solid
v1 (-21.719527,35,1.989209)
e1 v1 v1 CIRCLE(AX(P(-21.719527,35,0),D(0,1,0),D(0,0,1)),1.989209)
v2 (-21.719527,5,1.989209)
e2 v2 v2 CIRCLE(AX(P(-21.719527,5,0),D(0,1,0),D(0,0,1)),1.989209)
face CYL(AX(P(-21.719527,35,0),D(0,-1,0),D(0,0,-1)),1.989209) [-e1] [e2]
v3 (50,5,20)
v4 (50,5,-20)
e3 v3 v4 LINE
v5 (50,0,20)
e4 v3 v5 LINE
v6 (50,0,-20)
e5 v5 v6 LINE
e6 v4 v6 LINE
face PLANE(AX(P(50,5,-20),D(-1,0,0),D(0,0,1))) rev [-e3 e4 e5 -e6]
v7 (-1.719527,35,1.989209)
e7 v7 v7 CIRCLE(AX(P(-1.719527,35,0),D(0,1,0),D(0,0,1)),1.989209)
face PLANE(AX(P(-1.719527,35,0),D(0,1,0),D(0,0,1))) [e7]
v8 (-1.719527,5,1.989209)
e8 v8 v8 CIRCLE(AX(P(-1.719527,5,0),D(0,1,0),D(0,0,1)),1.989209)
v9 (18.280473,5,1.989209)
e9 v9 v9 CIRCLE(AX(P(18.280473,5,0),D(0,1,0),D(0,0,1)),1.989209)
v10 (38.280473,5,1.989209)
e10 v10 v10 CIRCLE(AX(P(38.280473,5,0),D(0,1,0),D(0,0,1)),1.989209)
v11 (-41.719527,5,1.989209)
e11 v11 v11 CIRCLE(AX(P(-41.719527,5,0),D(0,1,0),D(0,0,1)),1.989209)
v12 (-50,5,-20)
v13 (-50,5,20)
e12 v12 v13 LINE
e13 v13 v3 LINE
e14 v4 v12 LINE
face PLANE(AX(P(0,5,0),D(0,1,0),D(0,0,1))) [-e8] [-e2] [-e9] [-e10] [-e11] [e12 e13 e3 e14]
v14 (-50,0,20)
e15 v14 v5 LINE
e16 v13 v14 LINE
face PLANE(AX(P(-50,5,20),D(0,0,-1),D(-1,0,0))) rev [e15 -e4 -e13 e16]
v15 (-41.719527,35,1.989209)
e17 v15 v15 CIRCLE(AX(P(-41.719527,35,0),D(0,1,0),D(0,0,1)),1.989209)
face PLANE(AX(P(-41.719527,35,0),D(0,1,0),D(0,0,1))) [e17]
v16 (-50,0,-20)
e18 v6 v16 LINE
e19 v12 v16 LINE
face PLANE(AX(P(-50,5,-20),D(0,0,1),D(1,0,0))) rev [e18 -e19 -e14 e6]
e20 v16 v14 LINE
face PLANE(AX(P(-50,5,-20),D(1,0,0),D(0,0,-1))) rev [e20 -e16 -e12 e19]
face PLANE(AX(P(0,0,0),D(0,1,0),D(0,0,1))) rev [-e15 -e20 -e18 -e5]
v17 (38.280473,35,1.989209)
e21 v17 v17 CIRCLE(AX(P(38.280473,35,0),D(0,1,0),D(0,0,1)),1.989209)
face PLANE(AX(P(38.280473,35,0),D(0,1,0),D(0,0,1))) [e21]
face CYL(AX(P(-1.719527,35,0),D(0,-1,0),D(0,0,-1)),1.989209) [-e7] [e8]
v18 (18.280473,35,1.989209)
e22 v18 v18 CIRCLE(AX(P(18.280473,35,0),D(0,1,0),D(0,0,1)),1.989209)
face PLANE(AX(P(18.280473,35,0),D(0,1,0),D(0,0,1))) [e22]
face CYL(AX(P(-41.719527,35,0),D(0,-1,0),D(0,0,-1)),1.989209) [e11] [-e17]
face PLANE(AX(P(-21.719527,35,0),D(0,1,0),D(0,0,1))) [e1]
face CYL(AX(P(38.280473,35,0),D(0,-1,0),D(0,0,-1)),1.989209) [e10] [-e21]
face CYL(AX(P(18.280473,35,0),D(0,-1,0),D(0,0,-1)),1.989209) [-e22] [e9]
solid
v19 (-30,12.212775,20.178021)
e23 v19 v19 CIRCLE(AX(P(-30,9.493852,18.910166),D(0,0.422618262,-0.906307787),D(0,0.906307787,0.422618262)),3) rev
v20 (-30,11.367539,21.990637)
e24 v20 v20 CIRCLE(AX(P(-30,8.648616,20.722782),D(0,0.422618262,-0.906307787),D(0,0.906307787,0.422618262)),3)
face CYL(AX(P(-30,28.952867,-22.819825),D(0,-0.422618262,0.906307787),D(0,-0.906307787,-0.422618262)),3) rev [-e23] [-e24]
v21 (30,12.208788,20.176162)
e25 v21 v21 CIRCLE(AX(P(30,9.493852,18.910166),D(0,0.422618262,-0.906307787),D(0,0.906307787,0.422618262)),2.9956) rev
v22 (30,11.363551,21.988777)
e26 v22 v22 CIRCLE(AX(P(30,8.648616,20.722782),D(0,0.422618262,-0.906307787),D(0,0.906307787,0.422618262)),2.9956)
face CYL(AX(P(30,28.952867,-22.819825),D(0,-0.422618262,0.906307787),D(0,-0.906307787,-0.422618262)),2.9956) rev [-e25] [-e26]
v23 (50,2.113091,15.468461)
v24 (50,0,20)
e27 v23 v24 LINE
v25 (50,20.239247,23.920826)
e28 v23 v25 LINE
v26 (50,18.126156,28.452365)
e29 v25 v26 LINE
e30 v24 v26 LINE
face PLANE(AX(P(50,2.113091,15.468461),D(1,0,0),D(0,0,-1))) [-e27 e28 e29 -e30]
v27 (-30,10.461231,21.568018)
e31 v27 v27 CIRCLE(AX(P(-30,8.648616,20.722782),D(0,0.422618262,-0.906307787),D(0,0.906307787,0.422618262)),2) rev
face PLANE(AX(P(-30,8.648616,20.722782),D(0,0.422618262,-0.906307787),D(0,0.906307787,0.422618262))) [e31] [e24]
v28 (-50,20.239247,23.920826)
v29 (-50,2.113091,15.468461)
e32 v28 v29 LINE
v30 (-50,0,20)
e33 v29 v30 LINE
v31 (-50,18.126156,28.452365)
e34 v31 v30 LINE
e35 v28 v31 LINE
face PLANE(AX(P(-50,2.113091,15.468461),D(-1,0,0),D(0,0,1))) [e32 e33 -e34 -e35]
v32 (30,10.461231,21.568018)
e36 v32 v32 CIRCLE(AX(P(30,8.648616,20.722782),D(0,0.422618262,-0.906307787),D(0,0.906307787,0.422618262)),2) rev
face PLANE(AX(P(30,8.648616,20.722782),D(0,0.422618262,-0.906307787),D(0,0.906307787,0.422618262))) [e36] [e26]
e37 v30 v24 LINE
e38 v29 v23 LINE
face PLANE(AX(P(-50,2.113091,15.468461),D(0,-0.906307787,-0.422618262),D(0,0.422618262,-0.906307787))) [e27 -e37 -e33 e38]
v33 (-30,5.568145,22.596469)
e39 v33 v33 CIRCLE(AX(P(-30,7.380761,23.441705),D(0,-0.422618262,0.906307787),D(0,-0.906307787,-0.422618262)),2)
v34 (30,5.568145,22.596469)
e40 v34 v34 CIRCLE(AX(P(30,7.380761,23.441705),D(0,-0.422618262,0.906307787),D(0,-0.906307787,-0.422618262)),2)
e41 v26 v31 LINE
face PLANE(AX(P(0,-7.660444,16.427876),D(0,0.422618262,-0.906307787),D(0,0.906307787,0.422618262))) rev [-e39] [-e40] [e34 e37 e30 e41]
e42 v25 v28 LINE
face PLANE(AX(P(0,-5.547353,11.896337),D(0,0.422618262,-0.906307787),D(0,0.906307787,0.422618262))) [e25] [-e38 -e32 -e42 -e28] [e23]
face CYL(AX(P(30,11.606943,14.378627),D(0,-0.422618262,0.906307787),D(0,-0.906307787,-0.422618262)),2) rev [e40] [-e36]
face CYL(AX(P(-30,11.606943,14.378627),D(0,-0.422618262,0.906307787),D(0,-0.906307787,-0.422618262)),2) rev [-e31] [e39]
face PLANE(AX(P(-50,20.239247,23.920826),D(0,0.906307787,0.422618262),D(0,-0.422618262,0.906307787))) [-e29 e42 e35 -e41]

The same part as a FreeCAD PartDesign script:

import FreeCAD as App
import Part
import Sketcher

V = App.Vector
Q = App.Units.Quantity


def add_polygon(sketch, points):
    """Adds a closed chain of lines whose ends are joined by coincident constraints."""
    first, n = sketch.GeometryCount, len(points)
    for a, b in zip(points, points[1:] + points[:1]):
        sketch.addGeometry(Part.LineSegment(App.Vector(*a, 0), App.Vector(*b, 0)), False)
    for i in range(n):
        sketch.addConstraint(Sketcher.Constraint("Coincident", first + i, 2, first + (i + 1) % n, 1))

doc = App.newDocument("Part")
body = doc.addObject("PartDesign::Body", "Body")

sketch1 = body.newObject("Sketcher::SketchObject", "Sketch")
sketch1.AttachmentSupport = (doc.getObject("XZ_Plane"), [""])
sketch1.MapMode = "FlatFace"
add_polygon(sketch1, [(-50, -20), (-50, 20), (50, 20), (50, -20)])
sketch1.addConstraint([
    Sketcher.Constraint("Vertical", 0),
    Sketcher.Constraint("Horizontal", 1),
    Sketcher.Constraint("Vertical", 2),
    Sketcher.Constraint("Horizontal", 3),
    Sketcher.Constraint("Symmetric", 0, 2, 2, 2, -1, 1),
    Sketcher.Constraint("DistanceX", 1, 1, 1, 2, Q("100 mm")),
    Sketcher.Constraint("DistanceY", 0, 1, 0, 2, Q("40 mm")),
])
pad1 = body.newObject("PartDesign::Pad", "Pad")
pad1.Profile = sketch1
pad1.Length = 5
pad1.Reversed = True

sketch2 = body.newObject("Sketcher::SketchObject", "Sketch001")
sketch2.AttachmentSupport = (doc.getObject("XZ_Plane"), [""])
sketch2.MapMode = "FlatFace"
sketch2.AttachmentOffset = App.Placement(V(0, 0, -5), App.Rotation())
sketch2.addGeometry([
    Part.Circle(V(38.280473, 0, 0), V(0, 0, 1), 1.989209),
    Part.Circle(V(18.280473, 0, 0), V(0, 0, 1), 1.989209),
    Part.Circle(V(-1.719527, 0, 0), V(0, 0, 1), 1.989209),
    Part.Circle(V(-21.719527, 0, 0), V(0, 0, 1), 1.989209),
    Part.Circle(V(-41.719527, 0, 0), V(0, 0, 1), 1.989209),
], False)
sketch2.addConstraint([
    Sketcher.Constraint("Equal", 0, 1),
    Sketcher.Constraint("Equal", 1, 2),
    Sketcher.Constraint("Equal", 2, 3),
    Sketcher.Constraint("Equal", 3, 4),
    Sketcher.Constraint("PointOnObject", 0, 3, -1),
    Sketcher.Constraint("PointOnObject", 1, 3, -1),
    Sketcher.Constraint("PointOnObject", 2, 3, -1),
    Sketcher.Constraint("PointOnObject", 3, 3, -1),
    Sketcher.Constraint("PointOnObject", 4, 3, -1),
    Sketcher.Constraint("DistanceX", 1, 3, 0, 3, Q("20 mm")),
    Sketcher.Constraint("DistanceX", 2, 3, 1, 3, Q("20 mm")),
    Sketcher.Constraint("DistanceX", 3, 3, 2, 3, Q("20 mm")),
    Sketcher.Constraint("DistanceX", 4, 3, 3, 3, Q("20 mm")),
    Sketcher.Constraint("Diameter", 0, Q("3.978417 mm")),
    Sketcher.Constraint("DistanceX", -1, 1, 0, 3, Q("38.280473 mm")),
])
pad2 = body.newObject("PartDesign::Pad", "Pad001")
pad2.Profile = sketch2
pad2.Length = 30
pad2.Reversed = True
body2 = doc.addObject("PartDesign::Body", "Body001")

sketch3 = body2.newObject("Sketcher::SketchObject", "Sketch002")
sketch3.Placement = App.Placement(V(0, -7.660444, 16.427876), App.Rotation(V(1, 0, 0), V(0, 0.906307787, 0.422618262), V(0, -0.422618262, 0.906307787), "ZXY"))
add_polygon(sketch3, [(-50, 28.452365), (-50, 8.452365), (50, 8.452365), (50, 28.452365)])
sketch3.addConstraint([
    Sketcher.Constraint("Vertical", 0),
    Sketcher.Constraint("Horizontal", 1),
    Sketcher.Constraint("Vertical", 2),
    Sketcher.Constraint("Horizontal", 3),
    Sketcher.Constraint("DistanceX", 1, 1, 1, 2, Q("100 mm")),
    Sketcher.Constraint("DistanceY", 0, 2, 0, 1, Q("20 mm")),
    Sketcher.Constraint("DistanceX", 0, 2, -1, 1, Q("50 mm")),
    Sketcher.Constraint("DistanceY", -1, 1, 0, 2, Q("8.452365 mm")),
])
pad3 = body2.newObject("PartDesign::Pad", "Pad002")
pad3.Profile = sketch3
pad3.Length = 5
pad3.Reversed = True

sketch4 = body2.newObject("Sketcher::SketchObject", "Sketch003")
sketch4.Placement = App.Placement(V(0, -7.660444, 16.427876), App.Rotation(V(1, 0, 0), V(0, 0.906307787, 0.422618262), V(0, -0.422618262, 0.906307787), "ZXY"))
sketch4.addGeometry([
    Part.Circle(V(-30, 16.596134, 0), V(0, 0, 1), 2),
    Part.Circle(V(30, 16.596134, 0), V(0, 0, 1), 2),
], False)
sketch4.addConstraint([
    Sketcher.Constraint("Equal", 0, 1),
    Sketcher.Constraint("Symmetric", 0, 3, 1, 3, -2),
    Sketcher.Constraint("Diameter", 0, Q("4 mm")),
    Sketcher.Constraint("DistanceX", 0, 3, -1, 1, Q("30 mm")),
    Sketcher.Constraint("DistanceY", -1, 1, 0, 3, Q("16.596134 mm")),
])
pocket1 = body2.newObject("PartDesign::Pocket", "Pocket")
pocket1.Profile = sketch4
pocket1.Length = 10

sketch5 = body2.newObject("Sketcher::SketchObject", "Sketch004")
sketch5.Placement = App.Placement(V(0, -5.547353, 11.896337), App.Rotation(V(-1, 0, 0), V(0, 0.906307787, 0.422618262), V(0, 0.422618262, -0.906307787), "ZXY"))
sketch5.addGeometry([
    Part.Circle(V(-30, 16.596134, 0), V(0, 0, 1), 2.9956),
    Part.Circle(V(30, 16.596134, 0), V(0, 0, 1), 3),
], False)
sketch5.addConstraint([
    Sketcher.Constraint("Symmetric", 0, 3, 1, 3, -2),
    Sketcher.Constraint("Diameter", 1, Q("6 mm")),
    Sketcher.Constraint("DistanceX", 0, 3, -1, 1, Q("30 mm")),
    Sketcher.Constraint("Diameter", 0, Q("5.9912 mm")),
    Sketcher.Constraint("DistanceY", -1, 1, 0, 3, Q("16.596134 mm")),
])
pocket2 = body2.newObject("PartDesign::Pocket", "Pocket001")
pocket2.Profile = sketch5
pocket2.Type = "TwoLengths"
pocket2.Length = 72.843331
pocket2.Length2 = 2
pocket2.Reversed = True

doc.recompute()
